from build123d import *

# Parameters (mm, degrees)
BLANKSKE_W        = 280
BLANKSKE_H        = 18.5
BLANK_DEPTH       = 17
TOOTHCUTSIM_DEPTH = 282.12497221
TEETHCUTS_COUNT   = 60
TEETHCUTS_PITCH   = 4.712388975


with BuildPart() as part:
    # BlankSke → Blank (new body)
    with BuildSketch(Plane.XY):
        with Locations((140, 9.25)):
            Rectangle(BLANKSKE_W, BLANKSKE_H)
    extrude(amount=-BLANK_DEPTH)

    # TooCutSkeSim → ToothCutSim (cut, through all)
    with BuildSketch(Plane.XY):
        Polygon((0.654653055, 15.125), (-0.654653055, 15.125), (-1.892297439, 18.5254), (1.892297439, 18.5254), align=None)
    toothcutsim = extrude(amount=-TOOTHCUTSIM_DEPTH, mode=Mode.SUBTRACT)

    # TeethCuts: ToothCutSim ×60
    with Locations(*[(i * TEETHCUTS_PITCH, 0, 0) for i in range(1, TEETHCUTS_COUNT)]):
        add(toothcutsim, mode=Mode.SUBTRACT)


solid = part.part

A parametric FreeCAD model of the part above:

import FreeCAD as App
import Part
import Sketcher
Q = App.Units.Quantity


def add_polygon(sketch, points):
    """Adds a closed chain of lines whose ends are joined by coincident constraints."""
    first, n = sketch.GeometryCount, len(points)
    for a, b in zip(points, points[1:] + points[:1]):
        sketch.addGeometry(Part.LineSegment(App.Vector(*a, 0), App.Vector(*b, 0)), False)
    for i in range(n):
        sketch.addConstraint(Sketcher.Constraint("Coincident", first + i, 2, first + (i + 1) % n, 1))

doc = App.newDocument("Part")
params = doc.addObject("Spreadsheet::Sheet", "Params")
for row, (alias, value) in enumerate([
    ("sketch1_width", "280 mm"),
    ("sketch1_height", "18.5 mm"),
    ("pad1_length", "17 mm"),
    ("linearpattern_pitch", "4.712389 mm"),
], start=1):
    params.set(f"A{row}", alias)
    params.set(f"B{row}", "=" + value)
    params.setAlias(f"B{row}", alias)

body = doc.addObject("PartDesign::Body", "Body")

sketch1 = body.newObject("Sketcher::SketchObject", "Sketch")
sketch1.AttachmentSupport = (doc.getObject("XY_Plane"), [""])
sketch1.MapMode = "FlatFace"
add_polygon(sketch1, [(0, 18), (0, 0), (280, 0), (280, 18)])
sketch1.addConstraint([
    Sketcher.Constraint("Vertical", 0),
    Sketcher.Constraint("Horizontal", 1),
    Sketcher.Constraint("Vertical", 2),
    Sketcher.Constraint("Horizontal", 3),
    Sketcher.Constraint("Coincident", 0, 2, -1, 1),
    Sketcher.Constraint("DistanceX", 1, 1, 1, 2, Q("280 mm")),
    Sketcher.Constraint("DistanceY", 0, 2, 0, 1, Q("18.5 mm")),
])
sketch1.setExpression("Constraints[9]", "Params.sketch1_width")
sketch1.setExpression("Constraints[10]", "Params.sketch1_height")
pad1 = body.newObject("PartDesign::Pad", "Pad")
pad1.Profile = sketch1
pad1.setExpression("Length", "Params.pad1_length")
pad1.Reversed = True

sketch2 = body.newObject("Sketcher::SketchObject", "Sketch001")
sketch2.AttachmentSupport = (doc.getObject("XY_Plane"), [""])
sketch2.MapMode = "FlatFace"
add_polygon(sketch2, [(-0.7, 15.1), (0.7, 15.1), (1.9, 18.5), (-1.9, 18.5)])
sketch2.addConstraint([
    Sketcher.Constraint("Horizontal", 0),
    Sketcher.Constraint("Horizontal", 2),
    Sketcher.Constraint("Equal", 1, 3),
    Sketcher.Constraint("Angle", 1, Q("70 deg")),
    Sketcher.Constraint("DistanceY", -1, 1, 0, 2, Q("15.125 mm")),
    Sketcher.Constraint("DistanceY", -1, 1, 1, 2, Q("18.5254 mm")),
    Sketcher.Constraint("DistanceX", 0, 1, 0, 2, Q("1.309306 mm")),
    Sketcher.Constraint("DistanceX", -1, 1, 0, 2, Q("0.654653 mm")),
])
pocket1 = body.newObject("PartDesign::Pocket", "Pocket")
pocket1.Profile = sketch2
pocket1.Type = "ThroughAll"
doc.recompute()

linearpattern = body.newObject("PartDesign::LinearPattern", "LinearPattern")
linearpattern.Originals = [pocket1]
linearpattern.Direction = (doc.getObject("X_Axis"), [""])
linearpattern.Mode = "offset"
linearpattern.setExpression("Offset", "Params.linearpattern_pitch")
linearpattern.Occurrences = 60
body.Tip = linearpattern

doc.recompute()
